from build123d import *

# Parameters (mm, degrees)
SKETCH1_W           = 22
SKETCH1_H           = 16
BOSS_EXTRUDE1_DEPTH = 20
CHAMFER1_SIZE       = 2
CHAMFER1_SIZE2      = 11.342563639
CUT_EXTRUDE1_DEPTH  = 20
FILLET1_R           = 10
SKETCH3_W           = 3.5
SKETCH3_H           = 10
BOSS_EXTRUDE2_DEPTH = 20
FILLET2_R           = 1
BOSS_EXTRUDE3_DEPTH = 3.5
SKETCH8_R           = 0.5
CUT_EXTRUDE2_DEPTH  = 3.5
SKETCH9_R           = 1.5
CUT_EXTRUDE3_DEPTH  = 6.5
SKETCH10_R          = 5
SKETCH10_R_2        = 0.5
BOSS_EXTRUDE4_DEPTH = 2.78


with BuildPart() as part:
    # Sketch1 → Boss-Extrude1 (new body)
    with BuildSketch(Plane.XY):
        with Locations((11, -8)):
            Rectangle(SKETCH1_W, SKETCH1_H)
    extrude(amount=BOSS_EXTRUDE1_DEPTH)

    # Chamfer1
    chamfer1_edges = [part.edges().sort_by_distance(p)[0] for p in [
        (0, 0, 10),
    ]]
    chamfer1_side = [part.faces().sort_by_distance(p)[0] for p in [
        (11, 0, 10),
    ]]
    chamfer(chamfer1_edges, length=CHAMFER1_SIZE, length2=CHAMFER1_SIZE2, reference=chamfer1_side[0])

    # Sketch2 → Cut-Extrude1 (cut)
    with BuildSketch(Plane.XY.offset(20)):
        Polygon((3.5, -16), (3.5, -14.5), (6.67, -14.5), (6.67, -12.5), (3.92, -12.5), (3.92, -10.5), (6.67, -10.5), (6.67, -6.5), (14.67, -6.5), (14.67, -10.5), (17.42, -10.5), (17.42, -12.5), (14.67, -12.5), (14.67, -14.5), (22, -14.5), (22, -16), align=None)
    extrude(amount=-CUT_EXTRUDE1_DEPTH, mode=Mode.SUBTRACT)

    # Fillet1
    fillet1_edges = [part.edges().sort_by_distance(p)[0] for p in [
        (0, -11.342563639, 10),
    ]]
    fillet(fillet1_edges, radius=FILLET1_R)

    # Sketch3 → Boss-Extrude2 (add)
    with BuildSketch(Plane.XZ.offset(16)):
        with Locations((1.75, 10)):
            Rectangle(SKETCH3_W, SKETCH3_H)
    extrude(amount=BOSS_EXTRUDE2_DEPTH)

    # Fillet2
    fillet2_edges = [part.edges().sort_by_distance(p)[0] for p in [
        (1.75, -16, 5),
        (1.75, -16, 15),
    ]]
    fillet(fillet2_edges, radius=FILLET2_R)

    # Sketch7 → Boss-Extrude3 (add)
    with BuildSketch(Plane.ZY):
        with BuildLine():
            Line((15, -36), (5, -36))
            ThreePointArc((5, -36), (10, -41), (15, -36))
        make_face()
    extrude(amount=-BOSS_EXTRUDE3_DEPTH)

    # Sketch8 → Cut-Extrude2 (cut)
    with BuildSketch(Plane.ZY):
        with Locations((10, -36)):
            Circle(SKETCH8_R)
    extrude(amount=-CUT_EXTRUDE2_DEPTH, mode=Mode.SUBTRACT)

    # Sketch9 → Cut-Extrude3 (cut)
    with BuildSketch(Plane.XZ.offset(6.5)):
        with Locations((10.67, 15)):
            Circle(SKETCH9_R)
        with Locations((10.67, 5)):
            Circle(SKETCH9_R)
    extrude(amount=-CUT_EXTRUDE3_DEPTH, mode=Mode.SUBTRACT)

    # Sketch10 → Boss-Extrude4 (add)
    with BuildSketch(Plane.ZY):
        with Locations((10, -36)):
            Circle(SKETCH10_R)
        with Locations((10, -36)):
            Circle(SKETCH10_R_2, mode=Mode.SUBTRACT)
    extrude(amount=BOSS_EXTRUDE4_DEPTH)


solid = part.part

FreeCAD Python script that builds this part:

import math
import FreeCAD as App
import Part
import Sketcher


def edges_at(feature, points):
    """Names of the edges that pass closest to the given points."""
    edges = feature.Shape.Edges
    near = lambda p: min(range(len(edges)), key=lambda i: edges[i].distToShape(Part.Vertex(*p))[0])
    return sorted({f"Edge{near(p) + 1}" for p in points})


def add_polygon(sketch, points):
    """Adds a closed chain of lines whose ends are joined by coincident constraints."""
    first, n = sketch.GeometryCount, len(points)
    for a, b in zip(points, points[1:] + points[:1]):
        sketch.addGeometry(Part.LineSegment(App.Vector(*a, 0), App.Vector(*b, 0)), False)
    for i in range(n):
        sketch.addConstraint(Sketcher.Constraint("Coincident", first + i, 2, first + (i + 1) % n, 1))

doc = App.newDocument("Part")
body = doc.addObject("PartDesign::Body", "Body")

sketch1 = body.newObject("Sketcher::SketchObject", "Sketch")
sketch1.AttachmentSupport = (doc.getObject("XY_Plane"), [""])
sketch1.MapMode = "FlatFace"
add_polygon(sketch1, [(0, 0), (0, -16), (22, -16), (22, 0)])
sketch1.addConstraint([
    Sketcher.Constraint("Vertical", 0),
    Sketcher.Constraint("Horizontal", 1),
    Sketcher.Constraint("Vertical", 2),
    Sketcher.Constraint("Horizontal", 3),
    Sketcher.Constraint("Coincident", 3, 2, -1, 1),
    Sketcher.Constraint("DistanceX", 1, 1, 1, 2, 22.0),
    Sketcher.Constraint("DistanceY", 0, 2, 0, 1, 16.0),
])
pad1 = body.newObject("PartDesign::Pad", "Pad")
pad1.Profile = sketch1
pad1.Length = 20
doc.recompute()

chamfer = body.newObject("PartDesign::Chamfer", "Chamfer")
chamfer.Base = (pad1, edges_at(pad1, [(0, 0, 10)]))
chamfer.ChamferType = "Two distances"
chamfer.Size = 2
chamfer.Size2 = 11.342564
chamfer.FlipDirection = True

sketch2 = body.newObject("Sketcher::SketchObject", "Sketch001")
sketch2.AttachmentSupport = (doc.getObject("XY_Plane"), [""])
sketch2.MapMode = "FlatFace"
sketch2.AttachmentOffset = App.Placement(App.Vector(0, 0, 20), App.Rotation())
add_polygon(sketch2, [(3.5, -14.5), (3.5, -16), (22, -16), (22, -14.5), (14.7, -14.5), (14.7, -12.5), (17.4, -12.5), (17.4, -10.5), (14.7, -10.5), (14.7, -6.5), (6.7, -6.5), (6.7, -10.5), (3.9, -10.5), (3.9, -12.5), (6.7, -12.5), (6.7, -14.5)])
sketch2.addConstraint([
    Sketcher.Constraint("Vertical", 0),
    Sketcher.Constraint("Horizontal", 1),
    Sketcher.Constraint("Vertical", 2),
    Sketcher.Constraint("Horizontal", 3),
    Sketcher.Constraint("Vertical", 4),
    Sketcher.Constraint("Horizontal", 5),
    Sketcher.Constraint("Vertical", 6),
    Sketcher.Constraint("Horizontal", 7),
    Sketcher.Constraint("Vertical", 8),
    Sketcher.Constraint("Horizontal", 9),
    Sketcher.Constraint("Vertical", 10),
    Sketcher.Constraint("Horizontal", 11),
    Sketcher.Constraint("Vertical", 12),
    Sketcher.Constraint("Horizontal", 13),
    Sketcher.Constraint("Vertical", 14),
    Sketcher.Constraint("Horizontal", 15),
    Sketcher.Constraint("Horizontal", 7, 2, 10, 2),
    Sketcher.Constraint("Horizontal", 5, 2, 12, 2),
    Sketcher.Constraint("Horizontal", 3, 2, 14, 2),
    Sketcher.Constraint("Vertical", 4, 2, 7, 2),
    Sketcher.Constraint("Vertical", 10, 2, 13, 2),
    Sketcher.Constraint("Equal", 7, 11),
    Sketcher.Constraint("Equal", 4, 6),
    Sketcher.Constraint("DistanceX", 9, 2, 9, 1, 8.0),
    Sketcher.Constraint("DistanceY", 4, 1, 4, 2, 2.0),
    Sketcher.Constraint("DistanceY", 8, 1, 8, 2, 4.0),
    Sketcher.Constraint("DistanceX", 1, 1, 1, 2, 18.5),
    Sketcher.Constraint("DistanceY", 0, 2, 0, 1, 1.5),
    Sketcher.Constraint("DistanceY", 0, 2, -1, 1, 16.0),
    Sketcher.Constraint("DistanceX", -1, 1, 1, 2, 22.0),
    Sketcher.Constraint("DistanceX", 3, 2, 3, 1, 7.33),
    Sketcher.Constraint("DistanceX", 5, 1, 5, 2, 2.75),
])
pocket1 = body.newObject("PartDesign::Pocket", "Pocket")
pocket1.Profile = sketch2
pocket1.Length = 20
doc.recompute()

fillet = body.newObject("PartDesign::Fillet", "Fillet")
fillet.Base = (pocket1, edges_at(pocket1, [(0, -11.343, 10)]))
fillet.Radius = 10

sketch3 = body.newObject("Sketcher::SketchObject", "Sketch002")
sketch3.AttachmentSupport = (doc.getObject("XZ_Plane"), [""])
sketch3.MapMode = "FlatFace"
sketch3.AttachmentOffset = App.Placement(App.Vector(0, 0, 16), App.Rotation())
add_polygon(sketch3, [(0, 15), (0, 5), (3.5, 5), (3.5, 15)])
sketch3.addConstraint([
    Sketcher.Constraint("Vertical", 0),
    Sketcher.Constraint("Horizontal", 1),
    Sketcher.Constraint("Vertical", 2),
    Sketcher.Constraint("Horizontal", 3),
    Sketcher.Constraint("PointOnObject", 0, 2, -2),
    Sketcher.Constraint("DistanceY", 0, 2, 0, 1, 10.0),
    Sketcher.Constraint("DistanceX", 1, 1, 1, 2, 3.5),
    Sketcher.Constraint("DistanceY", -1, 1, 0, 2, 5.0),
])
pad2 = body.newObject("PartDesign::Pad", "Pad001")
pad2.Profile = sketch3
pad2.Length = 20
doc.recompute()

fillet2 = body.newObject("PartDesign::Fillet", "Fillet001")
fillet2.Base = (pad2, edges_at(pad2, [(1.75, -16, 5), (1.75, -16, 15)]))
fillet2.Radius = 1

sketch4 = body.newObject("Sketcher::SketchObject", "Sketch003")
sketch4.AttachmentSupport = (doc.getObject("YZ_Plane"), [""])
sketch4.MapMode = "FlatFace"
sketch4.addGeometry([
    Part.LineSegment(App.Vector(-36, 15, 0), App.Vector(-36, 5, 0)),
    Part.ArcOfCircle(Part.Circle(App.Vector(-36, 10, 0), App.Vector(0, 0, 1), 5), math.radians(90), math.radians(270)),
], False)
sketch4.addConstraint([
    Sketcher.Constraint("Coincident", 0, 1, 1, 1),
    Sketcher.Constraint("Coincident", 1, 2, 0, 2),
    Sketcher.Constraint("Vertical", 0),
    Sketcher.Constraint("Vertical", 1, 3, 0, 1),
    Sketcher.Constraint("Radius", 1, 5.0),
    Sketcher.Constraint("DistanceX", 1, 3, -1, 1, 36.0),
    Sketcher.Constraint("DistanceY", -1, 1, 1, 3, 10.0),
])
pad3 = body.newObject("PartDesign::Pad", "Pad002")
pad3.Profile = sketch4
pad3.Length = 3.5

sketch5 = body.newObject("Sketcher::SketchObject", "Sketch004")
sketch5.AttachmentSupport = (doc.getObject("YZ_Plane"), [""])
sketch5.MapMode = "FlatFace"
sketch5.addGeometry(Part.Circle(App.Vector(-36, 10, 0), App.Vector(0, 0, 1), 0.5), False)
sketch5.addConstraint([
    Sketcher.Constraint("Diameter", 0, 1.0),
    Sketcher.Constraint("DistanceX", 0, 3, -1, 1, 36.0),
    Sketcher.Constraint("DistanceY", -1, 1, 0, 3, 10.0),
])
pocket2 = body.newObject("PartDesign::Pocket", "Pocket001")
pocket2.Profile = sketch5
pocket2.Length = 3.5
pocket2.Reversed = True

sketch6 = body.newObject("Sketcher::SketchObject", "Sketch005")
sketch6.AttachmentSupport = (doc.getObject("XZ_Plane"), [""])
sketch6.MapMode = "FlatFace"
sketch6.AttachmentOffset = App.Placement(App.Vector(0, 0, 6.5), App.Rotation())
sketch6.addGeometry([
    Part.Circle(App.Vector(10.7, 15, 0), App.Vector(0, 0, 1), 1.5),
    Part.Circle(App.Vector(10.7, 5, 0), App.Vector(0, 0, 1), 1.5),
], False)
sketch6.addConstraint([
    Sketcher.Constraint("Equal", 0, 1),
    Sketcher.Constraint("Vertical", 0, 3, 1, 3),
    Sketcher.Constraint("Diameter", 0, 3.0),
    Sketcher.Constraint("DistanceY", -1, 1, 0, 3, 15.0),
    Sketcher.Constraint("DistanceY", -1, 1, 1, 3, 5.0),
    Sketcher.Constraint("DistanceX", -1, 1, 0, 3, 10.67),
])
pocket3 = body.newObject("PartDesign::Pocket", "Pocket002")
pocket3.Profile = sketch6
pocket3.Length = 6.5

sketch7 = body.newObject("Sketcher::SketchObject", "Sketch006")
sketch7.AttachmentSupport = (doc.getObject("YZ_Plane"), [""])
sketch7.MapMode = "FlatFace"
sketch7.addGeometry([
    Part.Circle(App.Vector(-36, 10, 0), App.Vector(0, 0, 1), 5),
    Part.Circle(App.Vector(-36, 10, 0), App.Vector(0, 0, 1), 0.5),
], False)
sketch7.addConstraint([
    Sketcher.Constraint("Coincident", 1, 3, 0, 3),
    Sketcher.Constraint("Diameter", 0, 10.0),
    Sketcher.Constraint("Diameter", 1, 1.0),
    Sketcher.Constraint("DistanceX", 0, 3, -1, 1, 36.0),
    Sketcher.Constraint("DistanceY", -1, 1, 0, 3, 10.0),
])
pad4 = body.newObject("PartDesign::Pad", "Pad003")
pad4.Profile = sketch7
pad4.Length = 2.78
pad4.Reversed = True

doc.recompute()
